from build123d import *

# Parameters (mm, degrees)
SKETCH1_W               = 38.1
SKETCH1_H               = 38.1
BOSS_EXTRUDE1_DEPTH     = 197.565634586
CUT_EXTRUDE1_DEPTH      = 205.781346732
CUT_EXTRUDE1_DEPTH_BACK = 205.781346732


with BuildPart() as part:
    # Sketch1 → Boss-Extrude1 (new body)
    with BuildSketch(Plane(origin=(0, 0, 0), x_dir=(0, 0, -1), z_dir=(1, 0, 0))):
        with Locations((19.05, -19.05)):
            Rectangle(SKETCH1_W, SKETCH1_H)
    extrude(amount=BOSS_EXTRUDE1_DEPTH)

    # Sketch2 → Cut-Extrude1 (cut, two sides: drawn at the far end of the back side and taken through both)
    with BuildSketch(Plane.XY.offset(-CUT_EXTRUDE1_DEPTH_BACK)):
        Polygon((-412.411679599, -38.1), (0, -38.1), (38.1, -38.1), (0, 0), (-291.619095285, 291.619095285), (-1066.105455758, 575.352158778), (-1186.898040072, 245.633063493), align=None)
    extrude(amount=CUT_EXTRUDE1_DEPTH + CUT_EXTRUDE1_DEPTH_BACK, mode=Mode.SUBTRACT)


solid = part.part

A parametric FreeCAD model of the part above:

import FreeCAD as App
import Part
import Sketcher
from FreeCAD import Vector
Q = App.Units.Quantity


def add_polygon(sketch, points):
    """Adds a closed chain of lines whose ends are joined by coincident constraints."""
    first, n = sketch.GeometryCount, len(points)
    for a, b in zip(points, points[1:] + points[:1]):
        sketch.addGeometry(Part.LineSegment(App.Vector(*a, 0), App.Vector(*b, 0)), False)
    for i in range(n):
        sketch.addConstraint(Sketcher.Constraint("Coincident", first + i, 2, first + (i + 1) % n, 1))

doc = App.newDocument("Part")
body = doc.addObject("PartDesign::Body", "Body")

# Sketch on YZ plane
sketch1 = body.newObject("Sketcher::SketchObject", "Sketch")
sketch1.AttachmentSupport = (doc.getObject("YZ_Plane"), [""])
sketch1.MapMode = "FlatFace"
add_polygon(sketch1, [(0, 0), (-38, 0), (-38, -38), (0, -38)])  # lines 0-3
sketch1.addConstraint([
    Sketcher.Constraint("Horizontal", 0),
    Sketcher.Constraint("Vertical", 1),
    Sketcher.Constraint("Horizontal", 2),
    Sketcher.Constraint("Vertical", 3),
    Sketcher.Constraint("Coincident", 3, 2, -1, 1),
    Sketcher.Constraint("Equal", 2, 1),
    Sketcher.Constraint("DistanceX", 0, 2, 0, 1, Q("1.5 in")),
])
pad1 = body.newObject("PartDesign::Pad", "Pad")
pad1.Profile = sketch1
pad1.Length = 197.565635

# Sketch on XY plane
sketch2 = body.newObject("Sketcher::SketchObject", "Sketch001")
sketch2.AttachmentSupport = (doc.getObject("XY_Plane"), [""])
sketch2.MapMode = "FlatFace"
add_polygon(sketch2, [(-412, -38), (38, -38), (-292, 292), (-1066, 575), (-1187, 246)])  # lines 0-4
sketch2.addConstraint([
    Sketcher.Constraint("Horizontal", 0),
    Sketcher.Constraint("Perpendicular", 2, 3),
    Sketcher.Constraint("Perpendicular", 3, 4),
    Sketcher.Constraint("Equal", 2, 4),
    Sketcher.Constraint("Angle", 1, Q("135 deg")),
    Sketcher.Constraint("DistanceX", -1, 1, 0, 2, Q("1.5 in")),
    Sketcher.Constraint("DistanceY", 0, 2, -1, 1, Q("1.5 in")),
    Sketcher.Constraint("DistanceX", 0, 1, 0, 2, 450.51168),
    Sketcher.Constraint("Distance", 2, 824.823359),
    Sketcher.Constraint("Distance", 3, 351.148872),
])
pocket1 = body.newObject("PartDesign::Pocket", "Pocket")
pocket1.Profile = sketch2
pocket1.Type = "ThroughAll"
pocket1.Midplane = True

doc.recompute()
